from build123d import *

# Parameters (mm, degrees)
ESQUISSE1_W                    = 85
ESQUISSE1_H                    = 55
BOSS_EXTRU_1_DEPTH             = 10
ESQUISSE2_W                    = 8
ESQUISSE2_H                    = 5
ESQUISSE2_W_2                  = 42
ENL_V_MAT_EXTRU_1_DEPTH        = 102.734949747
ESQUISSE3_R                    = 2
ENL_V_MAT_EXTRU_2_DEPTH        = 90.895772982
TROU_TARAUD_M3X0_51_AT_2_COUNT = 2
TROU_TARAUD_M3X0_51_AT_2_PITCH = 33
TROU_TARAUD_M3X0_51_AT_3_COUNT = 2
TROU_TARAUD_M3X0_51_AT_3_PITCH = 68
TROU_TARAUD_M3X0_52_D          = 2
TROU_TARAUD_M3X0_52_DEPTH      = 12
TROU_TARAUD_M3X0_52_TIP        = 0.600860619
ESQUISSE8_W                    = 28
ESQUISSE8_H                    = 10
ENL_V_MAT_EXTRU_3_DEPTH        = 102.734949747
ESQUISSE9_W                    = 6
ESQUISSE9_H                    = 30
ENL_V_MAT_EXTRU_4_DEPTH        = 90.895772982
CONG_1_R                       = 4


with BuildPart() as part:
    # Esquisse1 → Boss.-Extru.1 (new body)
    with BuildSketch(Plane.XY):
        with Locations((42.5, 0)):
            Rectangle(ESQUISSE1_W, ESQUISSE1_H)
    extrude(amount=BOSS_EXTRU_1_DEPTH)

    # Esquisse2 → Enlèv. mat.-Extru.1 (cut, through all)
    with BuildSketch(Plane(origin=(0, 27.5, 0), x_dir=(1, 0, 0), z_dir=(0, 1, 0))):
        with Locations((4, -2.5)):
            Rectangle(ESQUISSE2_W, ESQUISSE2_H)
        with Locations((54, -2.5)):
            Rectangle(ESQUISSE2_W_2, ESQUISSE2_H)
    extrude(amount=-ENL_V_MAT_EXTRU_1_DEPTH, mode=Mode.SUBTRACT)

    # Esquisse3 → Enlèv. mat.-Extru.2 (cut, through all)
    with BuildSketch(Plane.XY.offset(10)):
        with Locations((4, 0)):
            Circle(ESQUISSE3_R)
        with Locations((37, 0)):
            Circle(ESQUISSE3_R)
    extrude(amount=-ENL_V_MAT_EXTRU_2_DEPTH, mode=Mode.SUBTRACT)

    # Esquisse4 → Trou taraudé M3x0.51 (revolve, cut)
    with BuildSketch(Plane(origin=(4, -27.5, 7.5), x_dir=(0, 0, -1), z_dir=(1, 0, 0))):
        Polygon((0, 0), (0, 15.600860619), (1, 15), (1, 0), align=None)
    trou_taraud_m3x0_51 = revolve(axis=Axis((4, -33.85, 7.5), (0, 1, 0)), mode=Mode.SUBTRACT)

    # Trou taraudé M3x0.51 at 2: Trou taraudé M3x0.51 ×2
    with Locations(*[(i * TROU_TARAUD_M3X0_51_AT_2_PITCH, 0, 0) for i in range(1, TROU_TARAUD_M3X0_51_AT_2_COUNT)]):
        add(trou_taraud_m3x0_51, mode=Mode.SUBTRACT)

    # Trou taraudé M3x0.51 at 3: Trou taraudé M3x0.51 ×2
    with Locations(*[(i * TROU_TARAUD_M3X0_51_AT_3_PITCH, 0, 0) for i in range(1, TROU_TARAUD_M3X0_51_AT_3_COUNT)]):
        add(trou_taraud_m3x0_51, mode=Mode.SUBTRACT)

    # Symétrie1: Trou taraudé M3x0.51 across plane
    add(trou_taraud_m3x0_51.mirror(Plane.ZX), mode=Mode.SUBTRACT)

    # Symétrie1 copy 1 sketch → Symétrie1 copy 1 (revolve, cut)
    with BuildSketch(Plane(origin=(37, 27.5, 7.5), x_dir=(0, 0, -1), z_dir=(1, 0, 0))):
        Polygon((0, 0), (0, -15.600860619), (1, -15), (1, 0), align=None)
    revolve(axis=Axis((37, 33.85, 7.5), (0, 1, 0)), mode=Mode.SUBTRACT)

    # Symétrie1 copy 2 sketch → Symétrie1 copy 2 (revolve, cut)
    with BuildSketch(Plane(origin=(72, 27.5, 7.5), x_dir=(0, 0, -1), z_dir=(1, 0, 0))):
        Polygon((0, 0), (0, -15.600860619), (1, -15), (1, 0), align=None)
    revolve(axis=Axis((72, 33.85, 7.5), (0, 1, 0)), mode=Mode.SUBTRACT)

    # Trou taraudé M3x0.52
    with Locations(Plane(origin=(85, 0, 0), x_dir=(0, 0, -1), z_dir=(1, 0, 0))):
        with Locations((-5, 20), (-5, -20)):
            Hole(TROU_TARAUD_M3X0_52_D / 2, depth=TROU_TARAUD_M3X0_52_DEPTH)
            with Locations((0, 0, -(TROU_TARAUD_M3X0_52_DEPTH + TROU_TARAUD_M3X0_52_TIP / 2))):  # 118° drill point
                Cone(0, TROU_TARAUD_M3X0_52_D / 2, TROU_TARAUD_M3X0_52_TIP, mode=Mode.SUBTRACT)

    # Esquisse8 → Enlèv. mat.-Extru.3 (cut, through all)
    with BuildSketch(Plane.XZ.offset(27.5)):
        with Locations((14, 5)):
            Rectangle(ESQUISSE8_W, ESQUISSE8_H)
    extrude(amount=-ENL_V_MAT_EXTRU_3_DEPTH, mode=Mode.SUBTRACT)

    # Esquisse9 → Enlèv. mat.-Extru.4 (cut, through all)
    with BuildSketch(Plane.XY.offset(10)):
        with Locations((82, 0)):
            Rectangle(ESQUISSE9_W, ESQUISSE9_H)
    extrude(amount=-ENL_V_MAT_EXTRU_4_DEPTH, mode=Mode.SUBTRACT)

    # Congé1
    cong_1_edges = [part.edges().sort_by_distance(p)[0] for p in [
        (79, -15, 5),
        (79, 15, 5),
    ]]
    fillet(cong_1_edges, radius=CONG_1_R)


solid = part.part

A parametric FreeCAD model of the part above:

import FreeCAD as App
import Part
import Sketcher
from FreeCAD import Vector
Q = App.Units.Quantity


def edges_at(feature, points):
    """Names of the edges that pass closest to the given points."""
    edges = feature.Shape.Edges
    near = lambda p: min(range(len(edges)), key=lambda i: edges[i].distToShape(Part.Vertex(*p))[0])
    return sorted({f"Edge{near(p) + 1}" for p in points})

doc = App.newDocument("Part")
body = doc.addObject("PartDesign::Body", "Body")

# Sketch on XY plane
sketch1 = body.newObject("Sketcher::SketchObject", "Sketch")
sketch1.AttachmentSupport = (doc.getObject("XY_Plane"), [""])
sketch1.MapMode = "FlatFace"
sketch1.addGeometry(Part.LineSegment(Vector(0, 28, 0), Vector(0, -28, 0)), False)
sketch1.addGeometry(Part.LineSegment(Vector(0, -28, 0), Vector(85, -28, 0)), False)
sketch1.addGeometry(Part.LineSegment(Vector(85, -28, 0), Vector(85, 28, 0)), False)
sketch1.addGeometry(Part.LineSegment(Vector(85, 28, 0), Vector(0, 28, 0)), False)
sketch1.addConstraint(Sketcher.Constraint("Coincident", 0, 2, 1, 1))
sketch1.addConstraint(Sketcher.Constraint("Coincident", 1, 2, 2, 1))
sketch1.addConstraint(Sketcher.Constraint("Coincident", 2, 2, 3, 1))
sketch1.addConstraint(Sketcher.Constraint("Coincident", 3, 2, 0, 1))
sketch1.addConstraint(Sketcher.Constraint("Vertical", 0))
sketch1.addConstraint(Sketcher.Constraint("Horizontal", 1))
sketch1.addConstraint(Sketcher.Constraint("Vertical", 2))
sketch1.addConstraint(Sketcher.Constraint("Horizontal", 3))
sketch1.addConstraint(Sketcher.Constraint("Symmetric", 0, 2, 3, 2, -1, 1))
sketch1.addConstraint(Sketcher.Constraint("DistanceX", 1, 1, 1, 2, 85.0))
sketch1.addConstraint(Sketcher.Constraint("DistanceY", 0, 2, 0, 1, 55.0))
pad1 = body.newObject("PartDesign::Pad", "Pad")
pad1.Profile = sketch1
pad1.Length = 10

# Sketch on XZ plane
sketch2 = body.newObject("Sketcher::SketchObject", "Sketch001")
sketch2.AttachmentSupport = (doc.getObject("XZ_Plane"), [""])
sketch2.MapMode = "FlatFace"
sketch2.AttachmentOffset = App.Placement(Vector(0, 0, -27.5), App.Rotation())
sketch2.addGeometry(Part.LineSegment(Vector(0, 0, 0), Vector(0, 5, 0)), False)
sketch2.addGeometry(Part.LineSegment(Vector(0, 5, 0), Vector(8, 5, 0)), False)
sketch2.addGeometry(Part.LineSegment(Vector(8, 5, 0), Vector(8, 0, 0)), False)
sketch2.addGeometry(Part.LineSegment(Vector(8, 0, 0), Vector(0, 0, 0)), False)
sketch2.addGeometry(Part.LineSegment(Vector(33, 0, 0), Vector(33, 5, 0)), False)
sketch2.addGeometry(Part.LineSegment(Vector(33, 5, 0), Vector(75, 5, 0)), False)
sketch2.addGeometry(Part.LineSegment(Vector(75, 5, 0), Vector(75, 0, 0)), False)
sketch2.addGeometry(Part.LineSegment(Vector(75, 0, 0), Vector(33, 0, 0)), False)
sketch2.addConstraint(Sketcher.Constraint("Coincident", 0, 2, 1, 1))
sketch2.addConstraint(Sketcher.Constraint("Coincident", 1, 2, 2, 1))
sketch2.addConstraint(Sketcher.Constraint("Coincident", 2, 2, 3, 1))
sketch2.addConstraint(Sketcher.Constraint("Coincident", 3, 2, 0, 1))
sketch2.addConstraint(Sketcher.Constraint("Coincident", 4, 2, 5, 1))
sketch2.addConstraint(Sketcher.Constraint("Coincident", 5, 2, 6, 1))
sketch2.addConstraint(Sketcher.Constraint("Coincident", 6, 2, 7, 1))
sketch2.addConstraint(Sketcher.Constraint("Coincident", 7, 2, 4, 1))
sketch2.addConstraint(Sketcher.Constraint("Vertical", 0))
sketch2.addConstraint(Sketcher.Constraint("Horizontal", 1))
sketch2.addConstraint(Sketcher.Constraint("Vertical", 2))
sketch2.addConstraint(Sketcher.Constraint("Horizontal", 3))
sketch2.addConstraint(Sketcher.Constraint("Vertical", 4))
sketch2.addConstraint(Sketcher.Constraint("Horizontal", 5))
sketch2.addConstraint(Sketcher.Constraint("Vertical", 6))
sketch2.addConstraint(Sketcher.Constraint("Horizontal", 7))
sketch2.addConstraint(Sketcher.Constraint("Coincident", 3, 2, -1, 1))
sketch2.addConstraint(Sketcher.Constraint("PointOnObject", 6, 2, -1))
sketch2.addConstraint(Sketcher.Constraint("Horizontal", 1, 2, 4, 2))
sketch2.addConstraint(Sketcher.Constraint("DistanceX", 1, 1, 1, 2, 8.0))
sketch2.addConstraint(Sketcher.Constraint("DistanceX", 5, 1, 5, 2, 42.0))
sketch2.addConstraint(Sketcher.Constraint("DistanceY", 0, 1, 0, 2, 5.0))
sketch2.addConstraint(Sketcher.Constraint("DistanceX", -1, 1, 4, 2, 33.0))
pocket1 = body.newObject("PartDesign::Pocket", "Pocket")
pocket1.Profile = sketch2
pocket1.Type = "ThroughAll"
pocket1.Reversed = True

# Sketch on XY plane
sketch3 = body.newObject("Sketcher::SketchObject", "Sketch002")
sketch3.AttachmentSupport = (doc.getObject("XY_Plane"), [""])
sketch3.MapMode = "FlatFace"
sketch3.AttachmentOffset = App.Placement(Vector(0, 0, 10), App.Rotation())
sketch3.addGeometry(Part.Circle(Vector(4, 0, 0), Vector(0, 0, 1), 2), False)
sketch3.addGeometry(Part.Circle(Vector(37, 0, 0), Vector(0, 0, 1), 2), False)
sketch3.addConstraint(Sketcher.Constraint("Equal", 0, 1))
sketch3.addConstraint(Sketcher.Constraint("PointOnObject", 0, 3, -1))
sketch3.addConstraint(Sketcher.Constraint("PointOnObject", 1, 3, -1))
sketch3.addConstraint(Sketcher.Constraint("Diameter", 0, 4.0))
sketch3.addConstraint(Sketcher.Constraint("DistanceX", -1, 1, 0, 3, 4.0))
sketch3.addConstraint(Sketcher.Constraint("DistanceX", -1, 1, 1, 3, 37.0))
pocket2 = body.newObject("PartDesign::Pocket", "Pocket001")
pocket2.Profile = sketch3
pocket2.Type = "ThroughAll"

# Sketch on YZ plane
sketch4 = body.newObject("Sketcher::SketchObject", "Sketch003")
sketch4.AttachmentSupport = (doc.getObject("YZ_Plane"), [""])
sketch4.MapMode = "FlatFace"
sketch4.AttachmentOffset = App.Placement(Vector(0, 0, 4), App.Rotation())
sketch4.addGeometry(Part.LineSegment(Vector(-11.9, 7.5, 0), Vector(-27.5, 7.5, 0)), False)
sketch4.addGeometry(Part.LineSegment(Vector(-27.5, 7.5, 0), Vector(-27.5, 6.5, 0)), False)
sketch4.addGeometry(Part.LineSegment(Vector(-27.5, 6.5, 0), Vector(-12.5, 6.5, 0)), False)
sketch4.addGeometry(Part.LineSegment(Vector(-12.5, 6.5, 0), Vector(-11.9, 7.5, 0)), False)
sketch4.addGeometry(Part.LineSegment(Vector(-27.5, 7.5, 0), Vector(-11.9, 7.5, 0)), True)  # axis
sketch4.addConstraint(Sketcher.Constraint("Coincident", 0, 2, 1, 1))
sketch4.addConstraint(Sketcher.Constraint("Coincident", 1, 2, 2, 1))
sketch4.addConstraint(Sketcher.Constraint("Coincident", 2, 2, 3, 1))
sketch4.addConstraint(Sketcher.Constraint("Coincident", 3, 2, 0, 1))
sketch4.addConstraint(Sketcher.Constraint("Horizontal", 0))
sketch4.addConstraint(Sketcher.Constraint("Vertical", 1))
sketch4.addConstraint(Sketcher.Constraint("Horizontal", 2))
sketch4.addConstraint(Sketcher.Constraint("Horizontal", 4))
sketch4.addConstraint(Sketcher.Constraint("Coincident", 4, 1, 0, 2))
sketch4.addConstraint(Sketcher.Constraint("Equal", 0, 4))
sketch4.addConstraint(Sketcher.Constraint("DistanceX", 2, 1, 2, 2, 15.0))
sketch4.addConstraint(Sketcher.Constraint("DistanceY", 1, 2, 1, 1, 1.0))
sketch4.addConstraint(Sketcher.Constraint("Angle", 3, Q("59 deg")))
sketch4.addConstraint(Sketcher.Constraint("DistanceX", 0, 2, -1, 1, 27.5))
sketch4.addConstraint(Sketcher.Constraint("DistanceY", -1, 1, 0, 2, 7.5))
groove = body.newObject("PartDesign::Groove", "Groove")
groove.Profile = sketch4
groove.ReferenceAxis = (sketch4, ["Axis0"])
groove.Angle = 360
doc.recompute()

linearpattern = body.newObject("PartDesign::LinearPattern", "LinearPattern")
linearpattern.Originals = [groove]
linearpattern.Direction = (doc.getObject("X_Axis"), [""])
linearpattern.Mode = "offset"
linearpattern.Offset = 33
linearpattern.Occurrences = 2
body.Tip = linearpattern
doc.recompute()

linearpattern2 = body.newObject("PartDesign::LinearPattern", "LinearPattern001")
linearpattern2.Originals = [groove]
linearpattern2.Direction = (doc.getObject("X_Axis"), [""])
linearpattern2.Mode = "offset"
linearpattern2.Offset = 68
linearpattern2.Occurrences = 2
body.Tip = linearpattern2
doc.recompute()

mirrored = body.newObject("PartDesign::Mirrored", "Mirrored")
mirrored.Originals = [groove]
mirrored.MirrorPlane = (doc.getObject("XZ_Plane"), [""])
body.Tip = mirrored

# Sketch on YZ plane
sketch5 = body.newObject("Sketcher::SketchObject", "Sketch004")
sketch5.AttachmentSupport = (doc.getObject("YZ_Plane"), [""])
sketch5.MapMode = "FlatFace"
sketch5.AttachmentOffset = App.Placement(Vector(0, 0, 37), App.Rotation())
sketch5.addGeometry(Part.LineSegment(Vector(27.5, 7.5, 0), Vector(11.9, 7.5, 0)), False)
sketch5.addGeometry(Part.LineSegment(Vector(11.9, 7.5, 0), Vector(12.5, 6.5, 0)), False)
sketch5.addGeometry(Part.LineSegment(Vector(12.5, 6.5, 0), Vector(27.5, 6.5, 0)), False)
sketch5.addGeometry(Part.LineSegment(Vector(27.5, 6.5, 0), Vector(27.5, 7.5, 0)), False)
sketch5.addGeometry(Part.LineSegment(Vector(11.9, 7.5, 0), Vector(27.5, 7.5, 0)), True)  # axis
sketch5.addConstraint(Sketcher.Constraint("Coincident", 0, 2, 1, 1))
sketch5.addConstraint(Sketcher.Constraint("Coincident", 1, 2, 2, 1))
sketch5.addConstraint(Sketcher.Constraint("Coincident", 2, 2, 3, 1))
sketch5.addConstraint(Sketcher.Constraint("Coincident", 3, 2, 0, 1))
sketch5.addConstraint(Sketcher.Constraint("Horizontal", 0))
sketch5.addConstraint(Sketcher.Constraint("Horizontal", 2))
sketch5.addConstraint(Sketcher.Constraint("Vertical", 3))
sketch5.addConstraint(Sketcher.Constraint("Horizontal", 4))
sketch5.addConstraint(Sketcher.Constraint("Coincident", 4, 1, 0, 2))
sketch5.addConstraint(Sketcher.Constraint("Vertical", 2, 2, 4, 2))
sketch5.addConstraint(Sketcher.Constraint("DistanceX", 2, 1, 2, 2, 15.0))
sketch5.addConstraint(Sketcher.Constraint("DistanceY", 3, 1, 3, 2, 1.0))
sketch5.addConstraint(Sketcher.Constraint("Angle", 1, Q("-59 deg")))
sketch5.addConstraint(Sketcher.Constraint("DistanceY", -1, 1, 0, 2, 7.5))
sketch5.addConstraint(Sketcher.Constraint("DistanceX", -1, 1, 1, 2, 12.5))
groove2 = body.newObject("PartDesign::Groove", "Groove001")
groove2.Profile = sketch5
groove2.ReferenceAxis = (sketch5, ["Axis0"])
groove2.Angle = 360

# Sketch on YZ plane
sketch6 = body.newObject("Sketcher::SketchObject", "Sketch005")
sketch6.AttachmentSupport = (doc.getObject("YZ_Plane"), [""])
sketch6.MapMode = "FlatFace"
sketch6.AttachmentOffset = App.Placement(Vector(0, 0, 72), App.Rotation())
sketch6.addGeometry(Part.LineSegment(Vector(27.5, 7.5, 0), Vector(11.9, 7.5, 0)), False)
sketch6.addGeometry(Part.LineSegment(Vector(11.9, 7.5, 0), Vector(12.5, 6.5, 0)), False)
sketch6.addGeometry(Part.LineSegment(Vector(12.5, 6.5, 0), Vector(27.5, 6.5, 0)), False)
sketch6.addGeometry(Part.LineSegment(Vector(27.5, 6.5, 0), Vector(27.5, 7.5, 0)), False)
sketch6.addGeometry(Part.LineSegment(Vector(11.9, 7.5, 0), Vector(27.5, 7.5, 0)), True)  # axis
sketch6.addConstraint(Sketcher.Constraint("Coincident", 0, 2, 1, 1))
sketch6.addConstraint(Sketcher.Constraint("Coincident", 1, 2, 2, 1))
sketch6.addConstraint(Sketcher.Constraint("Coincident", 2, 2, 3, 1))
sketch6.addConstraint(Sketcher.Constraint("Coincident", 3, 2, 0, 1))
sketch6.addConstraint(Sketcher.Constraint("Horizontal", 0))
sketch6.addConstraint(Sketcher.Constraint("Horizontal", 2))
sketch6.addConstraint(Sketcher.Constraint("Vertical", 3))
sketch6.addConstraint(Sketcher.Constraint("Horizontal", 4))
sketch6.addConstraint(Sketcher.Constraint("Coincident", 4, 1, 0, 2))
sketch6.addConstraint(Sketcher.Constraint("Vertical", 2, 2, 4, 2))
sketch6.addConstraint(Sketcher.Constraint("DistanceX", 2, 1, 2, 2, 15.0))
sketch6.addConstraint(Sketcher.Constraint("DistanceY", 3, 1, 3, 2, 1.0))
sketch6.addConstraint(Sketcher.Constraint("Angle", 1, Q("-59 deg")))
sketch6.addConstraint(Sketcher.Constraint("DistanceY", -1, 1, 0, 2, 7.5))
sketch6.addConstraint(Sketcher.Constraint("DistanceX", -1, 1, 1, 2, 12.5))
groove3 = body.newObject("PartDesign::Groove", "Groove002")
groove3.Profile = sketch6
groove3.ReferenceAxis = (sketch6, ["Axis0"])
groove3.Angle = 360

# Sketch on YZ plane
sketch7 = body.newObject("Sketcher::SketchObject", "Sketch006")
sketch7.AttachmentSupport = (doc.getObject("YZ_Plane"), [""])
sketch7.MapMode = "FlatFace"
sketch7.AttachmentOffset = App.Placement(Vector(0, 0, 85), App.Rotation())
sketch7.addGeometry(Part.Circle(Vector(20, 5, 0), Vector(0, 0, 1), 1), False)
sketch7.addGeometry(Part.Circle(Vector(-20, 5, 0), Vector(0, 0, 1), 1), False)
sketch7.addConstraint(Sketcher.Constraint("Equal", 0, 1))
sketch7.addConstraint(Sketcher.Constraint("Symmetric", 0, 3, 1, 3, -2))
sketch7.addConstraint(Sketcher.Constraint("Diameter", 0, 2.0))
sketch7.addConstraint(Sketcher.Constraint("DistanceX", -1, 1, 0, 3, 20.0))
sketch7.addConstraint(Sketcher.Constraint("DistanceY", -1, 1, 0, 3, 5.0))
doc.recompute()
hole = body.newObject("PartDesign::Hole", "Hole")
hole.Profile = sketch7
hole.ThreadType = "None"
hole.Diameter = 2
hole.DepthType = "Dimension"
hole.Depth = 12
hole.DrillPoint = "Angled"
hole.DrillPointAngle = 118

# Sketch on XZ plane
sketch8 = body.newObject("Sketcher::SketchObject", "Sketch007")
sketch8.AttachmentSupport = (doc.getObject("XZ_Plane"), [""])
sketch8.MapMode = "FlatFace"
sketch8.AttachmentOffset = App.Placement(Vector(0, 0, 27.5), App.Rotation())
sketch8.addGeometry(Part.LineSegment(Vector(0, 10, 0), Vector(0, 0, 0)), False)
sketch8.addGeometry(Part.LineSegment(Vector(0, 0, 0), Vector(28, 0, 0)), False)
sketch8.addGeometry(Part.LineSegment(Vector(28, 0, 0), Vector(28, 10, 0)), False)
sketch8.addGeometry(Part.LineSegment(Vector(28, 10, 0), Vector(0, 10, 0)), False)
sketch8.addConstraint(Sketcher.Constraint("Coincident", 0, 2, 1, 1))
sketch8.addConstraint(Sketcher.Constraint("Coincident", 1, 2, 2, 1))
sketch8.addConstraint(Sketcher.Constraint("Coincident", 2, 2, 3, 1))
sketch8.addConstraint(Sketcher.Constraint("Coincident", 3, 2, 0, 1))
sketch8.addConstraint(Sketcher.Constraint("Vertical", 0))
sketch8.addConstraint(Sketcher.Constraint("Horizontal", 1))
sketch8.addConstraint(Sketcher.Constraint("Vertical", 2))
sketch8.addConstraint(Sketcher.Constraint("Horizontal", 3))
sketch8.addConstraint(Sketcher.Constraint("Coincident", 0, 2, -1, 1))
sketch8.addConstraint(Sketcher.Constraint("DistanceX", 1, 1, 1, 2, 28.0))
sketch8.addConstraint(Sketcher.Constraint("DistanceY", 0, 2, 0, 1, 10.0))
pocket3 = body.newObject("PartDesign::Pocket", "Pocket002")
pocket3.Profile = sketch8
pocket3.Type = "ThroughAll"

# Sketch on XY plane
sketch9 = body.newObject("Sketcher::SketchObject", "Sketch008")
sketch9.AttachmentSupport = (doc.getObject("XY_Plane"), [""])
sketch9.MapMode = "FlatFace"
sketch9.AttachmentOffset = App.Placement(Vector(0, 0, 10), App.Rotation())
sketch9.addGeometry(Part.LineSegment(Vector(79, 15, 0), Vector(79, -15, 0)), False)
sketch9.addGeometry(Part.LineSegment(Vector(79, -15, 0), Vector(85, -15, 0)), False)
sketch9.addGeometry(Part.LineSegment(Vector(85, -15, 0), Vector(85, 15, 0)), False)
sketch9.addGeometry(Part.LineSegment(Vector(85, 15, 0), Vector(79, 15, 0)), False)
sketch9.addConstraint(Sketcher.Constraint("Coincident", 0, 2, 1, 1))
sketch9.addConstraint(Sketcher.Constraint("Coincident", 1, 2, 2, 1))
sketch9.addConstraint(Sketcher.Constraint("Coincident", 2, 2, 3, 1))
sketch9.addConstraint(Sketcher.Constraint("Coincident", 3, 2, 0, 1))
sketch9.addConstraint(Sketcher.Constraint("Vertical", 0))
sketch9.addConstraint(Sketcher.Constraint("Horizontal", 1))
sketch9.addConstraint(Sketcher.Constraint("Vertical", 2))
sketch9.addConstraint(Sketcher.Constraint("Horizontal", 3))
sketch9.addConstraint(Sketcher.Constraint("DistanceX", 1, 1, 1, 2, 6.0))
sketch9.addConstraint(Sketcher.Constraint("DistanceY", 0, 2, 0, 1, 30.0))
sketch9.addConstraint(Sketcher.Constraint("DistanceX", -1, 1, 0, 2, 79.0))
sketch9.addConstraint(Sketcher.Constraint("DistanceY", 0, 2, -1, 1, 15.0))
pocket4 = body.newObject("PartDesign::Pocket", "Pocket003")
pocket4.Profile = sketch9
pocket4.Type = "ThroughAll"
doc.recompute()

fillet = body.newObject("PartDesign::Fillet", "Fillet")
fillet.Base = (pocket4, edges_at(pocket4, [(79, -15, 5), (79, 15, 5)]))
fillet.Radius = 4

doc.recompute()
